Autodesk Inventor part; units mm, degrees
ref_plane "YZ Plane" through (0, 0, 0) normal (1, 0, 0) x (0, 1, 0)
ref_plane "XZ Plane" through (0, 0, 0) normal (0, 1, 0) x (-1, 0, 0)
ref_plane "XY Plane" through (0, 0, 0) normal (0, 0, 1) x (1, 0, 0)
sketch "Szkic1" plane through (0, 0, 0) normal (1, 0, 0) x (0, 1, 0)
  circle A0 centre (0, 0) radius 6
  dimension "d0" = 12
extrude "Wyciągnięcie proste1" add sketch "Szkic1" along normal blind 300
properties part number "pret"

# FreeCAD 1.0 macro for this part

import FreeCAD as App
import Part
import Sketcher

V = App.Vector

doc = App.newDocument("Part")
body = doc.addObject("PartDesign::Body", "Body")

# Sketch on YZ plane
sketch1 = doc.addObject("Sketcher::SketchObject", "Sketch")
body.addObject(sketch1)
sketch1.AttachmentSupport = (doc.YZ_Plane, [""])
sketch1.MapMode = "FlatFace"
sketch1.addGeometry(Part.Circle(V(0, 0, 0), V(0, 0, 1), 6), False)
sketch1.addConstraint(Sketcher.Constraint("Coincident", 0, 3, -1, 1))
sketch1.addConstraint(Sketcher.Constraint("Diameter", 0, 12.0))
pad1 = doc.addObject("PartDesign::Pad", "Pad")
body.addObject(pad1)
pad1.Profile = sketch1
pad1.Length = 300

doc.recompute()
